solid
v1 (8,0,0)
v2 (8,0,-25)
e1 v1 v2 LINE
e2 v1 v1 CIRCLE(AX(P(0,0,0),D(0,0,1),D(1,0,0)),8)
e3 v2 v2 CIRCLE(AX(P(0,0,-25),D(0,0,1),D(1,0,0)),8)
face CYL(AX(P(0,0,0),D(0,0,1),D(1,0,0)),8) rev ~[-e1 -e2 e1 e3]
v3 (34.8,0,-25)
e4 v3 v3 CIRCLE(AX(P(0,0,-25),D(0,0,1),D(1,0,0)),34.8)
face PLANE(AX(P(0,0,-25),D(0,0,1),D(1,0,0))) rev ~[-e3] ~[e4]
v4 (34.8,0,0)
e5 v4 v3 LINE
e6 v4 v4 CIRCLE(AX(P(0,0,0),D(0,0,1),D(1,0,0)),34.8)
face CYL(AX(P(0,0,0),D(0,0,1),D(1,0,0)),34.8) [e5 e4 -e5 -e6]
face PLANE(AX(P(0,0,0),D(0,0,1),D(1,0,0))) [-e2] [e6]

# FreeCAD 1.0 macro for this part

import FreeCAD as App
import Part
import Sketcher
from FreeCAD import Vector

doc = App.newDocument("Part")
body = doc.addObject("PartDesign::Body", "Body")

sketch1 = doc.addObject("Sketcher::SketchObject", "Sketch")
body.addObject(sketch1)
sketch1.AttachmentSupport = (doc.XY_Plane, [""])
sketch1.MapMode = "FlatFace"
sketch1.addGeometry(Part.Circle(Vector(0, 0, 0), Vector(0, 0, 1), 35), False)
sketch1.addConstraint([
    Sketcher.Constraint("Coincident", 0, 3, -1, 1),
    Sketcher.Constraint("Diameter", 0, 69.6),
])
pad1 = doc.addObject("PartDesign::Pad", "Pad")
body.addObject(pad1)
pad1.Profile = sketch1
pad1.Length = 25
pad1.Reversed = True

sketch2 = doc.addObject("Sketcher::SketchObject", "Sketch001")
body.addObject(sketch2)
sketch2.AttachmentSupport = (doc.XY_Plane, [""])
sketch2.MapMode = "FlatFace"
sketch2.addGeometry(Part.Circle(Vector(0, 0, 0), Vector(0, 0, 1), 8), False)
sketch2.addConstraint([
    Sketcher.Constraint("Coincident", 0, 3, -1, 1),
    Sketcher.Constraint("Diameter", 0, 16.0),
])
pocket1 = doc.addObject("PartDesign::Pocket", "Pocket")
body.addObject(pocket1)
pocket1.Profile = sketch2
pocket1.Length = 25

doc.recompute()
